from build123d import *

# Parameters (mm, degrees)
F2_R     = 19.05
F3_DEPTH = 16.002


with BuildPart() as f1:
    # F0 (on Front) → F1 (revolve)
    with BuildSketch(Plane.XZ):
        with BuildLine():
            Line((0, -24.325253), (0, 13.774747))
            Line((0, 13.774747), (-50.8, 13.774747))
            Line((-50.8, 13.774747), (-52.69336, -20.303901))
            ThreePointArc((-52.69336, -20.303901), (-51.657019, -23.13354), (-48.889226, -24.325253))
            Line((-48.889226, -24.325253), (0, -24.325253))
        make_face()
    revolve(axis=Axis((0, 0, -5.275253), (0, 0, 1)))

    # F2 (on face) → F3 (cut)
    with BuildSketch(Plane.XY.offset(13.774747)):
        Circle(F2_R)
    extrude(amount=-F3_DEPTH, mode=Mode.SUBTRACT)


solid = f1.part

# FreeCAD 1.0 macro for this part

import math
import FreeCAD as App
import Part
import Sketcher
from FreeCAD import Vector
Q = App.Units.Quantity

doc = App.newDocument("Part")
body = doc.addObject("PartDesign::Body", "Body")

# Sketch on XZ plane
sketch1 = body.newObject("Sketcher::SketchObject", "Sketch")
sketch1.AttachmentSupport = (doc.getObject("XZ_Plane"), [""])
sketch1.MapMode = "FlatFace"
sketch1.addGeometry([
    Part.LineSegment(Vector(0, -24.325253, 0), Vector(0, 13.774747, 0)),  # 0
    Part.LineSegment(Vector(0, 13.774747, 0), Vector(-50.8, 13.774747, 0)),  # 1
    Part.LineSegment(Vector(-50.8, 13.774747, 0), Vector(-52.69336, -20.303901, 0)),  # 2
    Part.ArcOfCircle(Part.Circle(Vector(-48.889227, -20.515253, 0), Vector(0, 0, 1), 3.81), math.radians(176.819996), math.radians(270.000015)),  # 3
    Part.LineSegment(Vector(-48.889226, -24.325253, 0), Vector(0, -24.325253, 0)),  # 4
], False)
sketch1.addConstraint([
    Sketcher.Constraint("Coincident", 0, 2, 1, 1),
    Sketcher.Constraint("Coincident", 1, 2, 2, 1),
    Sketcher.Constraint("Tangent", 2, 2, 3, 1),
    Sketcher.Constraint("Tangent", 3, 2, 4, 1),
    Sketcher.Constraint("Coincident", 4, 2, 0, 1),
    Sketcher.Constraint("Vertical", 0),
    Sketcher.Constraint("Horizontal", 1),
    Sketcher.Constraint("Horizontal", 4),
    Sketcher.Constraint("PointOnObject", 0, 2, -2),
    Sketcher.Constraint("DistanceX", 1, 2, 1, 1, Q("2 in")),
    Sketcher.Constraint("Radius", 3, Q("0.15 in")),
    Sketcher.Constraint("DistanceY", 0, 1, 0, 2, Q("1.5 in")),
    Sketcher.Constraint("Angle", 2, Q("-93.180001 deg")),
    Sketcher.Constraint("DistanceY", 2, 2, -1, 1, 20.303901),
])
revolution = body.newObject("PartDesign::Revolution", "Revolution")
revolution.Profile = sketch1
revolution.ReferenceAxis = (sketch1, ["V_Axis"])
revolution.Angle = 360

# Sketch on XY plane
sketch2 = body.newObject("Sketcher::SketchObject", "Sketch001")
sketch2.AttachmentSupport = (doc.getObject("XY_Plane"), [""])
sketch2.MapMode = "FlatFace"
sketch2.AttachmentOffset = App.Placement(Vector(0, 0, 13.774747), App.Rotation())
sketch2.addGeometry(Part.Circle(Vector(0, 0, 0), Vector(0, 0, 1), 19.05), False)
sketch2.addConstraint([
    Sketcher.Constraint("Coincident", 0, 3, -1, 1),
    Sketcher.Constraint("Diameter", 0, Q("1.5 in")),
])
pocket1 = body.newObject("PartDesign::Pocket", "Pocket")
pocket1.Profile = sketch2
pocket1.Length = Q("0.63 in")

doc.recompute()
